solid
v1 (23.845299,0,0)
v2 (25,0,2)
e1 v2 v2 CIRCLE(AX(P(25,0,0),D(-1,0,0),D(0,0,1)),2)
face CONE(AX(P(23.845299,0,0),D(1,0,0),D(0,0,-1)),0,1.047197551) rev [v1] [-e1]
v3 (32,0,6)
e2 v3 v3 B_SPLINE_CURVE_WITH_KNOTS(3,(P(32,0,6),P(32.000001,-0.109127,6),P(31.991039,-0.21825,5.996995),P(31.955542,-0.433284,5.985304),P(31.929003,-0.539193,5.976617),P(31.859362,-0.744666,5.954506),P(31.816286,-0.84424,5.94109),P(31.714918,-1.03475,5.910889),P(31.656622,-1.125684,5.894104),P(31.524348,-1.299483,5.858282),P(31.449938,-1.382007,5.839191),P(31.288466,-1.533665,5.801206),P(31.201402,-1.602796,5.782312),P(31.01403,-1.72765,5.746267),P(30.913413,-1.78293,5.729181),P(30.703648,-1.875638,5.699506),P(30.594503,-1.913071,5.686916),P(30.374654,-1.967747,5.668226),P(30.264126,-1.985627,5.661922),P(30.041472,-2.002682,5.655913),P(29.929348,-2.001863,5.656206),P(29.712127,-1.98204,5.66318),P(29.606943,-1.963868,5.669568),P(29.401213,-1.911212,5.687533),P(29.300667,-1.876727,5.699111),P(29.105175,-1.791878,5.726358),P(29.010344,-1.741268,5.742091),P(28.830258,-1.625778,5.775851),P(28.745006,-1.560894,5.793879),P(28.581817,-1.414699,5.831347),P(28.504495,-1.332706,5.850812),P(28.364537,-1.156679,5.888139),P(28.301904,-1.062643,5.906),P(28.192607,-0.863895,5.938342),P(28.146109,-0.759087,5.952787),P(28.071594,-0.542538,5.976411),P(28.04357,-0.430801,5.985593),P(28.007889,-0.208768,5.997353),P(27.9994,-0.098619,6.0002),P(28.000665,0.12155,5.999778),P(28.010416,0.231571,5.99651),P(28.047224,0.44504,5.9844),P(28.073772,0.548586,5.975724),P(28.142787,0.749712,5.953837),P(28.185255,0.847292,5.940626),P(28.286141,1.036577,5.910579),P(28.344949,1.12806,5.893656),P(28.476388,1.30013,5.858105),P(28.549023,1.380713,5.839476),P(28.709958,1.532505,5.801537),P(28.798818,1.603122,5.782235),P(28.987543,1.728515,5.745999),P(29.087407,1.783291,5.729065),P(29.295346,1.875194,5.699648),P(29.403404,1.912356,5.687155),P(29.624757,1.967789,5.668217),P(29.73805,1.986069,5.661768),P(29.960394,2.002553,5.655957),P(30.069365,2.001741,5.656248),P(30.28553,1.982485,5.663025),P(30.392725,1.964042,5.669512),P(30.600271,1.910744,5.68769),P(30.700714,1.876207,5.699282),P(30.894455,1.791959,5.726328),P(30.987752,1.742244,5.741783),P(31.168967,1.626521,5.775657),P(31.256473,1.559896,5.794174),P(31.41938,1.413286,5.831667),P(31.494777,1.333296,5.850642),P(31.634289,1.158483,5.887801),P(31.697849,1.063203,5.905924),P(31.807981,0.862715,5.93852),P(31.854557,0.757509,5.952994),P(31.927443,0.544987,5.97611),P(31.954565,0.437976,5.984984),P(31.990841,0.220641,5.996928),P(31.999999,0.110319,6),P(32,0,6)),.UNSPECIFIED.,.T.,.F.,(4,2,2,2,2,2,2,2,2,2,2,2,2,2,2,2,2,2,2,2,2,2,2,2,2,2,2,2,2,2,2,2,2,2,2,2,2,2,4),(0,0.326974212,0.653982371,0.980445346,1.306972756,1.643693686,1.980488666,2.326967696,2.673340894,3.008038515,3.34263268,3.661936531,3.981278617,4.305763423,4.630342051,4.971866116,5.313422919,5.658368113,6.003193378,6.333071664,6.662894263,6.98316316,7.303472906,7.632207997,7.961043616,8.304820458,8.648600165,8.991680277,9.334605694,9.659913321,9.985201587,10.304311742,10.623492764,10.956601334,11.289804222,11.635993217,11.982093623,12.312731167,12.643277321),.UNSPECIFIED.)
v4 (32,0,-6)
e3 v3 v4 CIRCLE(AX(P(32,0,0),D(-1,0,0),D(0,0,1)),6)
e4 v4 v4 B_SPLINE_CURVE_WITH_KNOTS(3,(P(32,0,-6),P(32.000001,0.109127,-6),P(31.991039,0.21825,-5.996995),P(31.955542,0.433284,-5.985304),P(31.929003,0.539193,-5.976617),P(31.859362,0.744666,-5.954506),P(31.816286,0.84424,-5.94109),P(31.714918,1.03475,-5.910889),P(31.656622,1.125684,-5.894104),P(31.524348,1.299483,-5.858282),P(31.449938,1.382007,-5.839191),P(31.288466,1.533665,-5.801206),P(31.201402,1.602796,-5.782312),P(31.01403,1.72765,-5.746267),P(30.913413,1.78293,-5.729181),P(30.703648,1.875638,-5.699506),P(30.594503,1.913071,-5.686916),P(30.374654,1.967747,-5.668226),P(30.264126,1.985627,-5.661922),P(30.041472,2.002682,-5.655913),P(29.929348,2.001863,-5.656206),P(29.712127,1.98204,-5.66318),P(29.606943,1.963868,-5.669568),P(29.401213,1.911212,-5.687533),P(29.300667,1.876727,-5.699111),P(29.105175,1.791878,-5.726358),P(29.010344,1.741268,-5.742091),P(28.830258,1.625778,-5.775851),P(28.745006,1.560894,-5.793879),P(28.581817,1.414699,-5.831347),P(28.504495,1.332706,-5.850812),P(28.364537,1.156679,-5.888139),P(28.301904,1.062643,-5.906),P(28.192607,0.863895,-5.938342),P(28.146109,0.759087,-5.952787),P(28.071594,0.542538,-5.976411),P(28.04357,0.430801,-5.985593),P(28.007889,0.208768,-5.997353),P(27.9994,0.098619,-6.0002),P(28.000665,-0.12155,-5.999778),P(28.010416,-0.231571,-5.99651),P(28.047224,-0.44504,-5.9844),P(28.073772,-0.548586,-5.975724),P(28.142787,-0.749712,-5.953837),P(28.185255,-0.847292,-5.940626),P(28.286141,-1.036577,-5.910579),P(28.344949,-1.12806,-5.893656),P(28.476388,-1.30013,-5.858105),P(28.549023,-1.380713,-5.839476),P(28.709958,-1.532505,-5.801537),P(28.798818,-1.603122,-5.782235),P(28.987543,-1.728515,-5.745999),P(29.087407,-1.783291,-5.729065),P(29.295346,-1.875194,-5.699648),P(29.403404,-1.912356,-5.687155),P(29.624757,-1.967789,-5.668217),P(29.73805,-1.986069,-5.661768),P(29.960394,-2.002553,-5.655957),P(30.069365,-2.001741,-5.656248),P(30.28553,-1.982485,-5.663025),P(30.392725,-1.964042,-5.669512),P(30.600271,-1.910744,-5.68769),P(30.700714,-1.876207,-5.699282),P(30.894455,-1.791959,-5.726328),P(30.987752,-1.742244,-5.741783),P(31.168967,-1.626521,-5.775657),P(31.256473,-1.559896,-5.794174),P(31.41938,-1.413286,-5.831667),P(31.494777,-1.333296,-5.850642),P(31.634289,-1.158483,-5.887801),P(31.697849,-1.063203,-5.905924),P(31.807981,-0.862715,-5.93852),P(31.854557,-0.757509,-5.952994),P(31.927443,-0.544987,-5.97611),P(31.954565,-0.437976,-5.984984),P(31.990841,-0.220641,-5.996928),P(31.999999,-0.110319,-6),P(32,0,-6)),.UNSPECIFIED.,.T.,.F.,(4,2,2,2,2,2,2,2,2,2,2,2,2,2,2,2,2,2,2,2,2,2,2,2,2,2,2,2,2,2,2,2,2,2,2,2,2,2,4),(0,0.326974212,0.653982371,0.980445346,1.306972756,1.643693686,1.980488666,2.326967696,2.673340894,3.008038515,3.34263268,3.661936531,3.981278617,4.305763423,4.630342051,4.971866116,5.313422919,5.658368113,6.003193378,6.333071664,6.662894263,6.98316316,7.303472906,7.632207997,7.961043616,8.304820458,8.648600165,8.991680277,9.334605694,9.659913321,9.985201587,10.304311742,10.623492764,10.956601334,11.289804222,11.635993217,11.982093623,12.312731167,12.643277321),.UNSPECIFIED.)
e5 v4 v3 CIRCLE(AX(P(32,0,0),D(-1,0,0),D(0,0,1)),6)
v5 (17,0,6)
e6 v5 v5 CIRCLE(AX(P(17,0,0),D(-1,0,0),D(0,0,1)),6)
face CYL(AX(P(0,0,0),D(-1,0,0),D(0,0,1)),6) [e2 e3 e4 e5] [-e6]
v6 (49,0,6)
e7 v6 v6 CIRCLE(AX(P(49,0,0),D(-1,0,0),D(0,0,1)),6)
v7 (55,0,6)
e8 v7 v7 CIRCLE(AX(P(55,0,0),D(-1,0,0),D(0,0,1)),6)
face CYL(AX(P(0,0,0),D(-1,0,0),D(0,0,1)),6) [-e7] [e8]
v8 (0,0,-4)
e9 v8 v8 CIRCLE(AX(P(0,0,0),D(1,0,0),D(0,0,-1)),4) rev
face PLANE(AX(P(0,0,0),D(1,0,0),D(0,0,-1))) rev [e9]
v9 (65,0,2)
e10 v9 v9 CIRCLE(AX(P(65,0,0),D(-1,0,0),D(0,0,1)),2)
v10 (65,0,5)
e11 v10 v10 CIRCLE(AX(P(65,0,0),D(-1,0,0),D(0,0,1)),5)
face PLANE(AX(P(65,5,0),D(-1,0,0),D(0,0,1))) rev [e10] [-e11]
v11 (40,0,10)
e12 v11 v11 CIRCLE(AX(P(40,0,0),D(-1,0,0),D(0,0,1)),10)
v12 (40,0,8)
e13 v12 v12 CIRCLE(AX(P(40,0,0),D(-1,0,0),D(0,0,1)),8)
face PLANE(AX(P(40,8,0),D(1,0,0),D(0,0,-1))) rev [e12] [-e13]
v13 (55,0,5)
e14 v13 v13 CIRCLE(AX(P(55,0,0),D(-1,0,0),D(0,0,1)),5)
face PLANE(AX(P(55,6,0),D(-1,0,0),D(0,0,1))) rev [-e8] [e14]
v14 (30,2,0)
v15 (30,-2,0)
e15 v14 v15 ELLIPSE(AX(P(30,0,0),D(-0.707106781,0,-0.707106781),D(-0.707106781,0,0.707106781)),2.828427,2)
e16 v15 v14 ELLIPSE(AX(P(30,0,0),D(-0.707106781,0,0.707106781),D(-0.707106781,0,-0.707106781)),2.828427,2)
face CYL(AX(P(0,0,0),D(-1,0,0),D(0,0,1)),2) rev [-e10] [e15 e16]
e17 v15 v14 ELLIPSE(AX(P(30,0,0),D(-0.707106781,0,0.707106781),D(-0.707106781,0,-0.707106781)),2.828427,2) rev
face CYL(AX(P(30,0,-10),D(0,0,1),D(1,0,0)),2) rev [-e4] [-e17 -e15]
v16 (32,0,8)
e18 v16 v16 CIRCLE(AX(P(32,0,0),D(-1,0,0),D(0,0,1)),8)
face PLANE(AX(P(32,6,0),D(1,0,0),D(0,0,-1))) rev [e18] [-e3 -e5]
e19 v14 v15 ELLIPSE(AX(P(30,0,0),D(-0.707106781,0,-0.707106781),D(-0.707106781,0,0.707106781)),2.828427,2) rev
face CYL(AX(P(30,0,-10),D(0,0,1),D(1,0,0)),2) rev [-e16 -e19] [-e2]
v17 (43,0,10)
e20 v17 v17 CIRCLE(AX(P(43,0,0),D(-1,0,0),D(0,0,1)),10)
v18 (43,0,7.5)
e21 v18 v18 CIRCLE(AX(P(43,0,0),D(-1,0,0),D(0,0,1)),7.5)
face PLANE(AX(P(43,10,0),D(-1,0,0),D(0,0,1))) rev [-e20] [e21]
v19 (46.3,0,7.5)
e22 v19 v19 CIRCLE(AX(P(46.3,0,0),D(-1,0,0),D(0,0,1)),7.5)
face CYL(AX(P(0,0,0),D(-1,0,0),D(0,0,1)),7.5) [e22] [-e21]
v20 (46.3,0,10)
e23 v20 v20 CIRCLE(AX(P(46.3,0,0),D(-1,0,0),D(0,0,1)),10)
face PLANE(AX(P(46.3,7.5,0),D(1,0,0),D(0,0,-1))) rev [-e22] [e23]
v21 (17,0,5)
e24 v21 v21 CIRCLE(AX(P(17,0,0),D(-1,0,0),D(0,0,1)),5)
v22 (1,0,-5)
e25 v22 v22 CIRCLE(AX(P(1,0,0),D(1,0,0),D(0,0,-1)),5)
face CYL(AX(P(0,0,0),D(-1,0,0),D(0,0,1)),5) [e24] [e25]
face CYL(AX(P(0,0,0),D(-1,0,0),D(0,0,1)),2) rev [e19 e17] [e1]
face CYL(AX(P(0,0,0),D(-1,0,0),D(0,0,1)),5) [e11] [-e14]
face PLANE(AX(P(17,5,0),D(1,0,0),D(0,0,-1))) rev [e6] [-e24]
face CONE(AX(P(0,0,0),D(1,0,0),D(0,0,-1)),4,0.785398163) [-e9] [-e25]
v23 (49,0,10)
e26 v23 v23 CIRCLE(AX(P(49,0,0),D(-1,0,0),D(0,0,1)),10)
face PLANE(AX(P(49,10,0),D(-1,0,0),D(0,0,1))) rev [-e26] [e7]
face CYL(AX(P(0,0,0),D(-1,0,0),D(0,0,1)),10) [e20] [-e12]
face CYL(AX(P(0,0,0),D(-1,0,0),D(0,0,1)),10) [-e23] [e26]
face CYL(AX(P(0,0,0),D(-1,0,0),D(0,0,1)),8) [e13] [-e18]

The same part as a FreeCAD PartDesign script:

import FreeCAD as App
import Part
import Sketcher

V = App.Vector
Q = App.Units.Quantity


def edges_at(feature, points):
    """Names of the edges that pass closest to the given points."""
    edges = feature.Shape.Edges
    near = lambda p: min(range(len(edges)), key=lambda i: edges[i].distToShape(Part.Vertex(*p))[0])
    return sorted({f"Edge{near(p) + 1}" for p in points})


def add_polygon(sketch, points):
    """Adds a closed chain of lines whose ends are joined by coincident constraints."""
    first, n = sketch.GeometryCount, len(points)
    for a, b in zip(points, points[1:] + points[:1]):
        sketch.addGeometry(Part.LineSegment(App.Vector(*a, 0), App.Vector(*b, 0)), False)
    for i in range(n):
        sketch.addConstraint(Sketcher.Constraint("Coincident", first + i, 2, first + (i + 1) % n, 1))

doc = App.newDocument("Part")
body = doc.addObject("PartDesign::Body", "Body")

sketch1 = doc.addObject("Sketcher::SketchObject", "Sketch")
body.addObject(sketch1)
sketch1.AttachmentSupport = (doc.XY_Plane, [""])
sketch1.MapMode = "FlatFace"
add_polygon(sketch1, [(0, 5), (0, 0), (23.8, 0), (25, 2), (65, 2), (65, 5), (55, 5), (55, 6), (49, 6), (49, 10), (46.3, 10), (46.3, 7.5), (43, 7.5), (43, 10), (40, 10), (40, 8), (32, 8), (32, 6), (17, 6), (17, 5)])
sketch1.addConstraint([
    Sketcher.Constraint("Vertical", 0),
    Sketcher.Constraint("Horizontal", 1),
    Sketcher.Constraint("Horizontal", 3),
    Sketcher.Constraint("Vertical", 4),
    Sketcher.Constraint("Horizontal", 5),
    Sketcher.Constraint("Vertical", 6),
    Sketcher.Constraint("Horizontal", 7),
    Sketcher.Constraint("Vertical", 8),
    Sketcher.Constraint("Horizontal", 9),
    Sketcher.Constraint("Vertical", 10),
    Sketcher.Constraint("Horizontal", 11),
    Sketcher.Constraint("Vertical", 12),
    Sketcher.Constraint("Horizontal", 13),
    Sketcher.Constraint("Vertical", 14),
    Sketcher.Constraint("Horizontal", 15),
    Sketcher.Constraint("Vertical", 16),
    Sketcher.Constraint("Horizontal", 17),
    Sketcher.Constraint("Vertical", 18),
    Sketcher.Constraint("Horizontal", 19),
    Sketcher.Constraint("Coincident", 0, 2, -1, 1),
    Sketcher.Constraint("Horizontal", 9, 2, 12, 2),
    Sketcher.Constraint("Horizontal", 7, 2, 16, 2),
    Sketcher.Constraint("Horizontal", 5, 2, 18, 2),
    Sketcher.Constraint("Equal", 13, 4),
    Sketcher.Constraint("Equal", 14, 16),
    Sketcher.Constraint("DistanceX", 3, 1, 3, 2, 40.0),
    Sketcher.Constraint("DistanceX", 5, 2, 5, 1, 10.0),
    Sketcher.Constraint("DistanceX", 7, 2, 7, 1, 6.0),
    Sketcher.Constraint("DistanceX", 13, 2, 13, 1, 3.0),
    Sketcher.Constraint("DistanceX", 15, 2, 15, 1, 8.0),
    Sketcher.Constraint("DistanceX", 17, 2, 17, 1, 15.0),
    Sketcher.Constraint("DistanceX", 19, 2, 19, 1, 17.0),
    Sketcher.Constraint("DistanceY", 0, 2, 0, 1, 5.0),
    Sketcher.Constraint("DistanceY", 6, 1, 6, 2, 1.0),
    Sketcher.Constraint("DistanceY", 8, 1, 8, 2, 4.0),
    Sketcher.Constraint("Angle", 2, Q("60 deg")),
    Sketcher.Constraint("DistanceX", 9, 2, 9, 1, 2.7),
    Sketcher.Constraint("DistanceX", 11, 2, 11, 1, 3.3),
    Sketcher.Constraint("DistanceY", 10, 2, 10, 1, 2.5),
])
revolution = doc.addObject("PartDesign::Revolution", "Revolution")
body.addObject(revolution)
revolution.Profile = sketch1
revolution.ReferenceAxis = (sketch1, ["H_Axis"])
revolution.Angle = 360

sketch2 = doc.addObject("Sketcher::SketchObject", "Sketch001")
body.addObject(sketch2)
sketch2.AttachmentSupport = (doc.XY_Plane, [""])
sketch2.MapMode = "FlatFace"
sketch2.addGeometry(Part.Circle(V(30, 0, 0), V(0, 0, 1), 2), False)
sketch2.addConstraint([
    Sketcher.Constraint("PointOnObject", 0, 3, -1),
    Sketcher.Constraint("Diameter", 0, 4.0),
    Sketcher.Constraint("DistanceX", -1, 1, 0, 3, 30.0),
])
pocket1 = doc.addObject("PartDesign::Pocket", "Pocket")
body.addObject(pocket1)
pocket1.Profile = sketch2
pocket1.Type = "ThroughAll"
pocket1.Midplane = True
doc.recompute()

chamfer = doc.addObject("PartDesign::Chamfer", "Chamfer")
body.addObject(chamfer)
chamfer.Base = (pocket1, edges_at(pocket1, [(0, 0, -5)]))
chamfer.Size = 1

doc.recompute()
